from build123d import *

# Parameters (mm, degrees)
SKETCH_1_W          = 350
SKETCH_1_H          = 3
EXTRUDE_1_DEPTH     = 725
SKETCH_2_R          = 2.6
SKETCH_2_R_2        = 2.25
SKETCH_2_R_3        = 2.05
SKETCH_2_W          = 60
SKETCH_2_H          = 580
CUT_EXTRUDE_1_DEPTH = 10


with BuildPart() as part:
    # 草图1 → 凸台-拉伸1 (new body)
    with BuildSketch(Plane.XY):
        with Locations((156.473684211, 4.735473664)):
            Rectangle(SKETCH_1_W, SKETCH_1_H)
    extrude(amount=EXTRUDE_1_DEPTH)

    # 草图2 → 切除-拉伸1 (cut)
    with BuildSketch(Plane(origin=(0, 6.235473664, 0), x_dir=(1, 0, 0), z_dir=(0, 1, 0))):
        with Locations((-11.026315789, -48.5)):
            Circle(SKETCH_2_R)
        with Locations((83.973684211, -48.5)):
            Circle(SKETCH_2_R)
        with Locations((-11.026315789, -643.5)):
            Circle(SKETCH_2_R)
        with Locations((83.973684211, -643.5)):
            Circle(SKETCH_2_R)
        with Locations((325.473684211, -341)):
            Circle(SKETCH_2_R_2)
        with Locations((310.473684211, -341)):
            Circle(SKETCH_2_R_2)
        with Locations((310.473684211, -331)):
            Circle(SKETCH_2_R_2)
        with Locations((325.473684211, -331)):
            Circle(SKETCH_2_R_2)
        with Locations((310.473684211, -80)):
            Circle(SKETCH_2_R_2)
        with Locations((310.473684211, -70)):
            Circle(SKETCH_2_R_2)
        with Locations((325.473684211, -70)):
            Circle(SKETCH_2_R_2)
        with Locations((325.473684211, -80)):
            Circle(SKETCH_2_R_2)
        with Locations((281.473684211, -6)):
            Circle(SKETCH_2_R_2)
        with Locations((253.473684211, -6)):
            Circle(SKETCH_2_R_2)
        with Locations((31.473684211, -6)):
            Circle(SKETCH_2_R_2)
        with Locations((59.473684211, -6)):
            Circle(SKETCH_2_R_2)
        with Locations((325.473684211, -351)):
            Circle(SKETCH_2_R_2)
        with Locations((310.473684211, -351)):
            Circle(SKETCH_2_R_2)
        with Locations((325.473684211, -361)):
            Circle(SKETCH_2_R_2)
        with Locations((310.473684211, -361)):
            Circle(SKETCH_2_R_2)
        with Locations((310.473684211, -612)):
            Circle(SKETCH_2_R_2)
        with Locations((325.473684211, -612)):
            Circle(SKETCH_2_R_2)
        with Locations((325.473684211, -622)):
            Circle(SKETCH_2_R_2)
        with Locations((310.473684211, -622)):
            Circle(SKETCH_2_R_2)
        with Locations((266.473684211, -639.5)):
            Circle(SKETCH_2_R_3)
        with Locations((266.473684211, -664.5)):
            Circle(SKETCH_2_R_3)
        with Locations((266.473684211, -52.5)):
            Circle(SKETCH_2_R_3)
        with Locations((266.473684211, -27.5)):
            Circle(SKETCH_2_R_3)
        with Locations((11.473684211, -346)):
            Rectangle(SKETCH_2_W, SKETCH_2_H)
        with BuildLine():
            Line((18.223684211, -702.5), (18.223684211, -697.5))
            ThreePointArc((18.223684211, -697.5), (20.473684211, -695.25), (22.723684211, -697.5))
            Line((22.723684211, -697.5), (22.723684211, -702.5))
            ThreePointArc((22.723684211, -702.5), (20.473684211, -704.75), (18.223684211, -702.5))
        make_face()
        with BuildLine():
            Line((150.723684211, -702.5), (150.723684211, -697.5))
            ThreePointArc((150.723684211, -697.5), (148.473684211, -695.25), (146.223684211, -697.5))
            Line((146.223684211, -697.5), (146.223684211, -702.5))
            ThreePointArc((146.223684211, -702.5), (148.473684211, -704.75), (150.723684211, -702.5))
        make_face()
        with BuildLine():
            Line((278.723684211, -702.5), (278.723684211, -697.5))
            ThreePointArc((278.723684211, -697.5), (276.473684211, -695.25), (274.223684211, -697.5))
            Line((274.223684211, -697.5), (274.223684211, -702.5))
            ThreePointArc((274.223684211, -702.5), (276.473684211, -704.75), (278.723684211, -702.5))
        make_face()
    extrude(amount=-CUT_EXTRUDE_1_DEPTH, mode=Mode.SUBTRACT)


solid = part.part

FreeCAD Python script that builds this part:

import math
import FreeCAD as App
import Part
import Sketcher


def add_polygon(sketch, points):
    """Adds a closed chain of lines whose ends are joined by coincident constraints."""
    first, n = sketch.GeometryCount, len(points)
    for a, b in zip(points, points[1:] + points[:1]):
        sketch.addGeometry(Part.LineSegment(App.Vector(*a, 0), App.Vector(*b, 0)), False)
    for i in range(n):
        sketch.addConstraint(Sketcher.Constraint("Coincident", first + i, 2, first + (i + 1) % n, 1))

doc = App.newDocument("Part")
body = doc.addObject("PartDesign::Body", "Body")

# Sketch on XY plane
sketch1 = doc.addObject("Sketcher::SketchObject", "Sketch")
body.addObject(sketch1)
sketch1.AttachmentSupport = (doc.XY_Plane, [""])
sketch1.MapMode = "FlatFace"
add_polygon(sketch1, [(-18.5, 6.2), (-18.5, 3.2), (331.5, 3.2), (331.5, 6.2)])  # lines 0-3
sketch1.addConstraint(Sketcher.Constraint("Vertical", 0))
sketch1.addConstraint(Sketcher.Constraint("Horizontal", 1))
sketch1.addConstraint(Sketcher.Constraint("Vertical", 2))
sketch1.addConstraint(Sketcher.Constraint("Horizontal", 3))
sketch1.addConstraint(Sketcher.Constraint("DistanceX", 1, 1, 1, 2, 350.0))
sketch1.addConstraint(Sketcher.Constraint("DistanceY", 0, 2, 0, 1, 3.0))
sketch1.addConstraint(Sketcher.Constraint("DistanceX", 0, 2, -1, 1, 18.526316))
sketch1.addConstraint(Sketcher.Constraint("DistanceY", -1, 1, 0, 2, 3.235474))
pad1 = doc.addObject("PartDesign::Pad", "Pad")
body.addObject(pad1)
pad1.Profile = sketch1
pad1.Length = 725

# Sketch on XZ plane
sketch2 = doc.addObject("Sketcher::SketchObject", "Sketch001")
body.addObject(sketch2)
sketch2.AttachmentSupport = (doc.XZ_Plane, [""])
sketch2.MapMode = "FlatFace"
sketch2.AttachmentOffset = App.Placement(App.Vector(0, 0, -6.235474), App.Rotation())
sketch2.addGeometry(Part.Circle(App.Vector(-11, 48.5, 0), App.Vector(0, 0, 1), 2.6), False)  # 0
sketch2.addGeometry(Part.Circle(App.Vector(84, 48.5, 0), App.Vector(0, 0, 1), 2.6), False)  # 1
sketch2.addGeometry(Part.Circle(App.Vector(-11, 643.5, 0), App.Vector(0, 0, 1), 2.6), False)  # 2
sketch2.addGeometry(Part.Circle(App.Vector(84, 643.5, 0), App.Vector(0, 0, 1), 2.6), False)  # 3
sketch2.addGeometry(Part.Circle(App.Vector(325.5, 341, 0), App.Vector(0, 0, 1), 2.2), False)  # 4
sketch2.addGeometry(Part.Circle(App.Vector(310.5, 341, 0), App.Vector(0, 0, 1), 2.2), False)  # 5
sketch2.addGeometry(Part.Circle(App.Vector(310.5, 331, 0), App.Vector(0, 0, 1), 2.2), False)  # 6
sketch2.addGeometry(Part.Circle(App.Vector(325.5, 331, 0), App.Vector(0, 0, 1), 2.2), False)  # 7
sketch2.addGeometry(Part.Circle(App.Vector(310.5, 80, 0), App.Vector(0, 0, 1), 2.2), False)  # 8
sketch2.addGeometry(Part.Circle(App.Vector(310.5, 70, 0), App.Vector(0, 0, 1), 2.2), False)  # 9
sketch2.addGeometry(Part.Circle(App.Vector(325.5, 70, 0), App.Vector(0, 0, 1), 2.2), False)  # 10
sketch2.addGeometry(Part.Circle(App.Vector(325.5, 80, 0), App.Vector(0, 0, 1), 2.2), False)  # 11
sketch2.addGeometry(Part.Circle(App.Vector(281.5, 6, 0), App.Vector(0, 0, 1), 2.2), False)  # 12
sketch2.addGeometry(Part.Circle(App.Vector(253.5, 6, 0), App.Vector(0, 0, 1), 2.2), False)  # 13
sketch2.addGeometry(Part.Circle(App.Vector(31.5, 6, 0), App.Vector(0, 0, 1), 2.2), False)  # 14
sketch2.addGeometry(Part.Circle(App.Vector(59.5, 6, 0), App.Vector(0, 0, 1), 2.2), False)  # 15
sketch2.addGeometry(Part.Circle(App.Vector(325.5, 351, 0), App.Vector(0, 0, 1), 2.2), False)  # 16
sketch2.addGeometry(Part.Circle(App.Vector(310.5, 351, 0), App.Vector(0, 0, 1), 2.2), False)  # 17
sketch2.addGeometry(Part.Circle(App.Vector(325.5, 361, 0), App.Vector(0, 0, 1), 2.2), False)  # 18
sketch2.addGeometry(Part.Circle(App.Vector(310.5, 361, 0), App.Vector(0, 0, 1), 2.2), False)  # 19
sketch2.addGeometry(Part.Circle(App.Vector(310.5, 612, 0), App.Vector(0, 0, 1), 2.2), False)  # 20
sketch2.addGeometry(Part.Circle(App.Vector(325.5, 612, 0), App.Vector(0, 0, 1), 2.2), False)  # 21
sketch2.addGeometry(Part.Circle(App.Vector(325.5, 622, 0), App.Vector(0, 0, 1), 2.2), False)  # 22
sketch2.addGeometry(Part.Circle(App.Vector(310.5, 622, 0), App.Vector(0, 0, 1), 2.2), False)  # 23
sketch2.addGeometry(Part.Circle(App.Vector(266.5, 639.5, 0), App.Vector(0, 0, 1), 2), False)  # 24
sketch2.addGeometry(Part.Circle(App.Vector(266.5, 664.5, 0), App.Vector(0, 0, 1), 2), False)  # 25
sketch2.addGeometry(Part.Circle(App.Vector(266.5, 52.5, 0), App.Vector(0, 0, 1), 2), False)  # 26
sketch2.addGeometry(Part.Circle(App.Vector(266.5, 27.5, 0), App.Vector(0, 0, 1), 2), False)  # 27
add_polygon(sketch2, [(-18.5, 56), (-18.5, 636), (41.5, 636), (41.5, 56)])  # lines 28-31
sketch2.addGeometry(Part.LineSegment(App.Vector(18.2, 697.5, 0), App.Vector(18.2, 702.5, 0)), False)  # 32
sketch2.addGeometry(Part.ArcOfCircle(Part.Circle(App.Vector(20.5, 702.5, 0), App.Vector(0, 0, 1), 2.2), math.radians(0), math.radians(180)), False)  # 33
sketch2.addGeometry(Part.LineSegment(App.Vector(22.7, 702.5, 0), App.Vector(22.7, 697.5, 0)), False)  # 34
sketch2.addGeometry(Part.ArcOfCircle(Part.Circle(App.Vector(20.5, 697.5, 0), App.Vector(0, 0, 1), 2.2), math.radians(180), math.radians(360)), False)  # 35
sketch2.addGeometry(Part.LineSegment(App.Vector(150.7, 702.5, 0), App.Vector(150.7, 697.5, 0)), False)  # 36
sketch2.addGeometry(Part.ArcOfCircle(Part.Circle(App.Vector(148.5, 697.5, 0), App.Vector(0, 0, 1), 2.2), math.radians(180), math.radians(360)), False)  # 37
sketch2.addGeometry(Part.LineSegment(App.Vector(146.2, 697.5, 0), App.Vector(146.2, 702.5, 0)), False)  # 38
sketch2.addGeometry(Part.ArcOfCircle(Part.Circle(App.Vector(148.5, 702.5, 0), App.Vector(0, 0, 1), 2.2), math.radians(0), math.radians(180)), False)  # 39
sketch2.addGeometry(Part.LineSegment(App.Vector(278.7, 702.5, 0), App.Vector(278.7, 697.5, 0)), False)  # 40
sketch2.addGeometry(Part.ArcOfCircle(Part.Circle(App.Vector(276.5, 697.5, 0), App.Vector(0, 0, 1), 2.2), math.radians(180), math.radians(360)), False)  # 41
sketch2.addGeometry(Part.LineSegment(App.Vector(274.2, 697.5, 0), App.Vector(274.2, 702.5, 0)), False)  # 42
sketch2.addGeometry(Part.ArcOfCircle(Part.Circle(App.Vector(276.5, 702.5, 0), App.Vector(0, 0, 1), 2.2), math.radians(0), math.radians(180)), False)  # 43
sketch2.addConstraint(Sketcher.Constraint("Tangent", 32, 2, 33, 2))
sketch2.addConstraint(Sketcher.Constraint("Tangent", 33, 1, 34, 1))
sketch2.addConstraint(Sketcher.Constraint("Tangent", 34, 2, 35, 2))
sketch2.addConstraint(Sketcher.Constraint("Tangent", 35, 1, 32, 1))
sketch2.addConstraint(Sketcher.Constraint("Tangent", 36, 2, 37, 2))
sketch2.addConstraint(Sketcher.Constraint("Tangent", 37, 1, 38, 1))
sketch2.addConstraint(Sketcher.Constraint("Tangent", 38, 2, 39, 2))
sketch2.addConstraint(Sketcher.Constraint("Tangent", 39, 1, 36, 1))
sketch2.addConstraint(Sketcher.Constraint("Tangent", 40, 2, 41, 2))
sketch2.addConstraint(Sketcher.Constraint("Tangent", 41, 1, 42, 1))
sketch2.addConstraint(Sketcher.Constraint("Tangent", 42, 2, 43, 2))
sketch2.addConstraint(Sketcher.Constraint("Tangent", 43, 1, 40, 1))
sketch2.addConstraint(Sketcher.Constraint("Vertical", 28))
sketch2.addConstraint(Sketcher.Constraint("Horizontal", 29))
sketch2.addConstraint(Sketcher.Constraint("Vertical", 30))
sketch2.addConstraint(Sketcher.Constraint("Horizontal", 31))
sketch2.addConstraint(Sketcher.Constraint("Vertical", 32))
sketch2.addConstraint(Sketcher.Constraint("Vertical", 34))
sketch2.addConstraint(Sketcher.Constraint("Vertical", 36))
sketch2.addConstraint(Sketcher.Constraint("Vertical", 38))
sketch2.addConstraint(Sketcher.Constraint("Vertical", 40))
sketch2.addConstraint(Sketcher.Constraint("Vertical", 42))
sketch2.addConstraint(Sketcher.Constraint("Equal", 0, 1))
sketch2.addConstraint(Sketcher.Constraint("Equal", 1, 2))
sketch2.addConstraint(Sketcher.Constraint("Equal", 2, 3))
sketch2.addConstraint(Sketcher.Constraint("Equal", 4, 5))
sketch2.addConstraint(Sketcher.Constraint("Equal", 5, 6))
sketch2.addConstraint(Sketcher.Constraint("Equal", 6, 7))
sketch2.addConstraint(Sketcher.Constraint("Equal", 7, 8))
sketch2.addConstraint(Sketcher.Constraint("Equal", 8, 9))
sketch2.addConstraint(Sketcher.Constraint("Equal", 9, 10))
sketch2.addConstraint(Sketcher.Constraint("Equal", 10, 11))
sketch2.addConstraint(Sketcher.Constraint("Equal", 11, 12))
sketch2.addConstraint(Sketcher.Constraint("Equal", 12, 13))
sketch2.addConstraint(Sketcher.Constraint("Equal", 13, 14))
sketch2.addConstraint(Sketcher.Constraint("Equal", 14, 15))
sketch2.addConstraint(Sketcher.Constraint("Equal", 15, 16))
sketch2.addConstraint(Sketcher.Constraint("Equal", 16, 17))
sketch2.addConstraint(Sketcher.Constraint("Equal", 17, 18))
sketch2.addConstraint(Sketcher.Constraint("Equal", 18, 19))
sketch2.addConstraint(Sketcher.Constraint("Equal", 19, 20))
sketch2.addConstraint(Sketcher.Constraint("Equal", 20, 21))
sketch2.addConstraint(Sketcher.Constraint("Equal", 21, 22))
sketch2.addConstraint(Sketcher.Constraint("Equal", 22, 23))
sketch2.addConstraint(Sketcher.Constraint("Equal", 24, 25))
sketch2.addConstraint(Sketcher.Constraint("Equal", 25, 26))
sketch2.addConstraint(Sketcher.Constraint("Equal", 26, 27))
sketch2.addConstraint(Sketcher.Constraint("Equal", 23, 33))
sketch2.addConstraint(Sketcher.Constraint("Equal", 35, 37))
sketch2.addConstraint(Sketcher.Constraint("Equal", 39, 41))
sketch2.addConstraint(Sketcher.Constraint("Horizontal", 0, 3, 1, 3))
sketch2.addConstraint(Sketcher.Constraint("Horizontal", 2, 3, 3, 3))
sketch2.addConstraint(Sketcher.Constraint("Horizontal", 4, 3, 5, 3))
sketch2.addConstraint(Sketcher.Constraint("Horizontal", 6, 3, 7, 3))
sketch2.addConstraint(Sketcher.Constraint("Horizontal", 9, 3, 10, 3))
sketch2.addConstraint(Sketcher.Constraint("Horizontal", 8, 3, 11, 3))
sketch2.addConstraint(Sketcher.Constraint("Horizontal", 12, 3, 13, 3))
sketch2.addConstraint(Sketcher.Constraint("Horizontal", 13, 3, 14, 3))
sketch2.addConstraint(Sketcher.Constraint("Horizontal", 14, 3, 15, 3))
sketch2.addConstraint(Sketcher.Constraint("Horizontal", 16, 3, 17, 3))
sketch2.addConstraint(Sketcher.Constraint("Horizontal", 18, 3, 19, 3))
sketch2.addConstraint(Sketcher.Constraint("Horizontal", 20, 3, 21, 3))
sketch2.addConstraint(Sketcher.Constraint("Horizontal", 22, 3, 23, 3))
sketch2.addConstraint(Sketcher.Constraint("Horizontal", 35, 3, 37, 3))
sketch2.addConstraint(Sketcher.Constraint("Horizontal", 33, 3, 39, 3))
sketch2.addConstraint(Sketcher.Constraint("Horizontal", 37, 3, 41, 3))
sketch2.addConstraint(Sketcher.Constraint("Horizontal", 39, 3, 43, 3))
sketch2.addConstraint(Sketcher.Constraint("Vertical", 0, 3, 2, 3))
sketch2.addConstraint(Sketcher.Constraint("Vertical", 1, 3, 3, 3))
sketch2.addConstraint(Sketcher.Constraint("Vertical", 5, 3, 6, 3))
sketch2.addConstraint(Sketcher.Constraint("Vertical", 4, 3, 7, 3))
sketch2.addConstraint(Sketcher.Constraint("Vertical", 6, 3, 8, 3))
sketch2.addConstraint(Sketcher.Constraint("Vertical", 8, 3, 9, 3))
sketch2.addConstraint(Sketcher.Constraint("Vertical", 7, 3, 10, 3))
sketch2.addConstraint(Sketcher.Constraint("Vertical", 10, 3, 11, 3))
sketch2.addConstraint(Sketcher.Constraint("Vertical", 11, 3, 16, 3))
sketch2.addConstraint(Sketcher.Constraint("Vertical", 9, 3, 17, 3))
sketch2.addConstraint(Sketcher.Constraint("Vertical", 16, 3, 18, 3))
sketch2.addConstraint(Sketcher.Constraint("Vertical", 17, 3, 19, 3))
sketch2.addConstraint(Sketcher.Constraint("Vertical", 19, 3, 20, 3))
sketch2.addConstraint(Sketcher.Constraint("Vertical", 18, 3, 21, 3))
sketch2.addConstraint(Sketcher.Constraint("Vertical", 21, 3, 22, 3))
sketch2.addConstraint(Sketcher.Constraint("Vertical", 20, 3, 23, 3))
sketch2.addConstraint(Sketcher.Constraint("Vertical", 24, 3, 25, 3))
sketch2.addConstraint(Sketcher.Constraint("Vertical", 25, 3, 26, 3))
sketch2.addConstraint(Sketcher.Constraint("Vertical", 26, 3, 27, 3))
sketch2.addConstraint(Sketcher.Constraint("Diameter", 0, 5.2))
sketch2.addConstraint(Sketcher.Constraint("Diameter", 4, 4.5))
sketch2.addConstraint(Sketcher.Constraint("Diameter", 24, 4.1))
sketch2.addConstraint(Sketcher.Constraint("DistanceX", 29, 1, 29, 2, 60.0))
sketch2.addConstraint(Sketcher.Constraint("DistanceY", 28, 1, 28, 2, 580.0))
sketch2.addConstraint(Sketcher.Constraint("DistanceY", 32, 1, 32, 2, 5.0))
sketch2.addConstraint(Sketcher.Constraint("DistanceY", -1, 1, 4, 3, 341.0))
sketch2.addConstraint(Sketcher.Constraint("DistanceY", -1, 1, 6, 3, 331.0))
sketch2.addConstraint(Sketcher.Constraint("DistanceY", -1, 1, 8, 3, 80.0))
sketch2.addConstraint(Sketcher.Constraint("DistanceY", -1, 1, 9, 3, 70.0))
sketch2.addConstraint(Sketcher.Constraint("DistanceY", -1, 1, 12, 3, 6.0))
sketch2.addConstraint(Sketcher.Constraint("DistanceY", -1, 1, 16, 3, 351.0))
sketch2.addConstraint(Sketcher.Constraint("DistanceY", -1, 1, 18, 3, 361.0))
sketch2.addConstraint(Sketcher.Constraint("DistanceY", -1, 1, 20, 3, 612.0))
sketch2.addConstraint(Sketcher.Constraint("DistanceY", -1, 1, 22, 3, 622.0))
sketch2.addConstraint(Sketcher.Constraint("DistanceY", -1, 1, 28, 2, 636.0))
sketch2.addConstraint(Sketcher.Constraint("DistanceX", 0, 3, 1, 3, 95.0))
sketch2.addConstraint(Sketcher.Constraint("DistanceY", 0, 3, 2, 3, 595.0))
sketch2.addConstraint(Sketcher.Constraint("DistanceX", 5, 3, 4, 3, 15.0))
sketch2.addConstraint(Sketcher.Constraint("DistanceX", 12, 3, 9, 3, 29.0))
sketch2.addConstraint(Sketcher.Constraint("DistanceX", 13, 3, 12, 3, 28.0))
sketch2.addConstraint(Sketcher.Constraint("DistanceX", 14, 3, 13, 3, 222.0))
sketch2.addConstraint(Sketcher.Constraint("DistanceX", 14, 3, 15, 3, 28.0))
sketch2.addConstraint(Sketcher.Constraint("DistanceX", 24, 3, 23, 3, 44.0))
sketch2.addConstraint(Sketcher.Constraint("DistanceY", 24, 3, 3, 3, 4.0))
sketch2.addConstraint(Sketcher.Constraint("DistanceY", 24, 3, 25, 3, 25.0))
sketch2.addConstraint(Sketcher.Constraint("DistanceY", 27, 3, 26, 3, 25.0))
sketch2.addConstraint(Sketcher.Constraint("DistanceY", 2, 3, 33, 3, 59.0))
sketch2.addConstraint(Sketcher.Constraint("DistanceX", 33, 3, 25, 3, 246.0))
sketch2.addConstraint(Sketcher.Constraint("DistanceX", 37, 3, 25, 3, 118.0))
sketch2.addConstraint(Sketcher.Constraint("DistanceX", 25, 3, 41, 3, 10.0))
sketch2.addConstraint(Sketcher.Constraint("DistanceX", 28, 2, 35, 3, 39.0))
sketch2.addConstraint(Sketcher.Constraint("DistanceY", -1, 1, 0, 3, 48.5))
sketch2.addConstraint(Sketcher.Constraint("DistanceY", -1, 1, 26, 3, 52.5))
sketch2.addConstraint(Sketcher.Constraint("DistanceX", 1, 3, 4, 3, 241.5))
sketch2.addConstraint(Sketcher.Constraint("DistanceX", 0, 3, -1, 1, 11.026316))
pocket1 = doc.addObject("PartDesign::Pocket", "Pocket")
body.addObject(pocket1)
pocket1.Profile = sketch2
pocket1.Length = 10
pocket1.Reversed = True

doc.recompute()
